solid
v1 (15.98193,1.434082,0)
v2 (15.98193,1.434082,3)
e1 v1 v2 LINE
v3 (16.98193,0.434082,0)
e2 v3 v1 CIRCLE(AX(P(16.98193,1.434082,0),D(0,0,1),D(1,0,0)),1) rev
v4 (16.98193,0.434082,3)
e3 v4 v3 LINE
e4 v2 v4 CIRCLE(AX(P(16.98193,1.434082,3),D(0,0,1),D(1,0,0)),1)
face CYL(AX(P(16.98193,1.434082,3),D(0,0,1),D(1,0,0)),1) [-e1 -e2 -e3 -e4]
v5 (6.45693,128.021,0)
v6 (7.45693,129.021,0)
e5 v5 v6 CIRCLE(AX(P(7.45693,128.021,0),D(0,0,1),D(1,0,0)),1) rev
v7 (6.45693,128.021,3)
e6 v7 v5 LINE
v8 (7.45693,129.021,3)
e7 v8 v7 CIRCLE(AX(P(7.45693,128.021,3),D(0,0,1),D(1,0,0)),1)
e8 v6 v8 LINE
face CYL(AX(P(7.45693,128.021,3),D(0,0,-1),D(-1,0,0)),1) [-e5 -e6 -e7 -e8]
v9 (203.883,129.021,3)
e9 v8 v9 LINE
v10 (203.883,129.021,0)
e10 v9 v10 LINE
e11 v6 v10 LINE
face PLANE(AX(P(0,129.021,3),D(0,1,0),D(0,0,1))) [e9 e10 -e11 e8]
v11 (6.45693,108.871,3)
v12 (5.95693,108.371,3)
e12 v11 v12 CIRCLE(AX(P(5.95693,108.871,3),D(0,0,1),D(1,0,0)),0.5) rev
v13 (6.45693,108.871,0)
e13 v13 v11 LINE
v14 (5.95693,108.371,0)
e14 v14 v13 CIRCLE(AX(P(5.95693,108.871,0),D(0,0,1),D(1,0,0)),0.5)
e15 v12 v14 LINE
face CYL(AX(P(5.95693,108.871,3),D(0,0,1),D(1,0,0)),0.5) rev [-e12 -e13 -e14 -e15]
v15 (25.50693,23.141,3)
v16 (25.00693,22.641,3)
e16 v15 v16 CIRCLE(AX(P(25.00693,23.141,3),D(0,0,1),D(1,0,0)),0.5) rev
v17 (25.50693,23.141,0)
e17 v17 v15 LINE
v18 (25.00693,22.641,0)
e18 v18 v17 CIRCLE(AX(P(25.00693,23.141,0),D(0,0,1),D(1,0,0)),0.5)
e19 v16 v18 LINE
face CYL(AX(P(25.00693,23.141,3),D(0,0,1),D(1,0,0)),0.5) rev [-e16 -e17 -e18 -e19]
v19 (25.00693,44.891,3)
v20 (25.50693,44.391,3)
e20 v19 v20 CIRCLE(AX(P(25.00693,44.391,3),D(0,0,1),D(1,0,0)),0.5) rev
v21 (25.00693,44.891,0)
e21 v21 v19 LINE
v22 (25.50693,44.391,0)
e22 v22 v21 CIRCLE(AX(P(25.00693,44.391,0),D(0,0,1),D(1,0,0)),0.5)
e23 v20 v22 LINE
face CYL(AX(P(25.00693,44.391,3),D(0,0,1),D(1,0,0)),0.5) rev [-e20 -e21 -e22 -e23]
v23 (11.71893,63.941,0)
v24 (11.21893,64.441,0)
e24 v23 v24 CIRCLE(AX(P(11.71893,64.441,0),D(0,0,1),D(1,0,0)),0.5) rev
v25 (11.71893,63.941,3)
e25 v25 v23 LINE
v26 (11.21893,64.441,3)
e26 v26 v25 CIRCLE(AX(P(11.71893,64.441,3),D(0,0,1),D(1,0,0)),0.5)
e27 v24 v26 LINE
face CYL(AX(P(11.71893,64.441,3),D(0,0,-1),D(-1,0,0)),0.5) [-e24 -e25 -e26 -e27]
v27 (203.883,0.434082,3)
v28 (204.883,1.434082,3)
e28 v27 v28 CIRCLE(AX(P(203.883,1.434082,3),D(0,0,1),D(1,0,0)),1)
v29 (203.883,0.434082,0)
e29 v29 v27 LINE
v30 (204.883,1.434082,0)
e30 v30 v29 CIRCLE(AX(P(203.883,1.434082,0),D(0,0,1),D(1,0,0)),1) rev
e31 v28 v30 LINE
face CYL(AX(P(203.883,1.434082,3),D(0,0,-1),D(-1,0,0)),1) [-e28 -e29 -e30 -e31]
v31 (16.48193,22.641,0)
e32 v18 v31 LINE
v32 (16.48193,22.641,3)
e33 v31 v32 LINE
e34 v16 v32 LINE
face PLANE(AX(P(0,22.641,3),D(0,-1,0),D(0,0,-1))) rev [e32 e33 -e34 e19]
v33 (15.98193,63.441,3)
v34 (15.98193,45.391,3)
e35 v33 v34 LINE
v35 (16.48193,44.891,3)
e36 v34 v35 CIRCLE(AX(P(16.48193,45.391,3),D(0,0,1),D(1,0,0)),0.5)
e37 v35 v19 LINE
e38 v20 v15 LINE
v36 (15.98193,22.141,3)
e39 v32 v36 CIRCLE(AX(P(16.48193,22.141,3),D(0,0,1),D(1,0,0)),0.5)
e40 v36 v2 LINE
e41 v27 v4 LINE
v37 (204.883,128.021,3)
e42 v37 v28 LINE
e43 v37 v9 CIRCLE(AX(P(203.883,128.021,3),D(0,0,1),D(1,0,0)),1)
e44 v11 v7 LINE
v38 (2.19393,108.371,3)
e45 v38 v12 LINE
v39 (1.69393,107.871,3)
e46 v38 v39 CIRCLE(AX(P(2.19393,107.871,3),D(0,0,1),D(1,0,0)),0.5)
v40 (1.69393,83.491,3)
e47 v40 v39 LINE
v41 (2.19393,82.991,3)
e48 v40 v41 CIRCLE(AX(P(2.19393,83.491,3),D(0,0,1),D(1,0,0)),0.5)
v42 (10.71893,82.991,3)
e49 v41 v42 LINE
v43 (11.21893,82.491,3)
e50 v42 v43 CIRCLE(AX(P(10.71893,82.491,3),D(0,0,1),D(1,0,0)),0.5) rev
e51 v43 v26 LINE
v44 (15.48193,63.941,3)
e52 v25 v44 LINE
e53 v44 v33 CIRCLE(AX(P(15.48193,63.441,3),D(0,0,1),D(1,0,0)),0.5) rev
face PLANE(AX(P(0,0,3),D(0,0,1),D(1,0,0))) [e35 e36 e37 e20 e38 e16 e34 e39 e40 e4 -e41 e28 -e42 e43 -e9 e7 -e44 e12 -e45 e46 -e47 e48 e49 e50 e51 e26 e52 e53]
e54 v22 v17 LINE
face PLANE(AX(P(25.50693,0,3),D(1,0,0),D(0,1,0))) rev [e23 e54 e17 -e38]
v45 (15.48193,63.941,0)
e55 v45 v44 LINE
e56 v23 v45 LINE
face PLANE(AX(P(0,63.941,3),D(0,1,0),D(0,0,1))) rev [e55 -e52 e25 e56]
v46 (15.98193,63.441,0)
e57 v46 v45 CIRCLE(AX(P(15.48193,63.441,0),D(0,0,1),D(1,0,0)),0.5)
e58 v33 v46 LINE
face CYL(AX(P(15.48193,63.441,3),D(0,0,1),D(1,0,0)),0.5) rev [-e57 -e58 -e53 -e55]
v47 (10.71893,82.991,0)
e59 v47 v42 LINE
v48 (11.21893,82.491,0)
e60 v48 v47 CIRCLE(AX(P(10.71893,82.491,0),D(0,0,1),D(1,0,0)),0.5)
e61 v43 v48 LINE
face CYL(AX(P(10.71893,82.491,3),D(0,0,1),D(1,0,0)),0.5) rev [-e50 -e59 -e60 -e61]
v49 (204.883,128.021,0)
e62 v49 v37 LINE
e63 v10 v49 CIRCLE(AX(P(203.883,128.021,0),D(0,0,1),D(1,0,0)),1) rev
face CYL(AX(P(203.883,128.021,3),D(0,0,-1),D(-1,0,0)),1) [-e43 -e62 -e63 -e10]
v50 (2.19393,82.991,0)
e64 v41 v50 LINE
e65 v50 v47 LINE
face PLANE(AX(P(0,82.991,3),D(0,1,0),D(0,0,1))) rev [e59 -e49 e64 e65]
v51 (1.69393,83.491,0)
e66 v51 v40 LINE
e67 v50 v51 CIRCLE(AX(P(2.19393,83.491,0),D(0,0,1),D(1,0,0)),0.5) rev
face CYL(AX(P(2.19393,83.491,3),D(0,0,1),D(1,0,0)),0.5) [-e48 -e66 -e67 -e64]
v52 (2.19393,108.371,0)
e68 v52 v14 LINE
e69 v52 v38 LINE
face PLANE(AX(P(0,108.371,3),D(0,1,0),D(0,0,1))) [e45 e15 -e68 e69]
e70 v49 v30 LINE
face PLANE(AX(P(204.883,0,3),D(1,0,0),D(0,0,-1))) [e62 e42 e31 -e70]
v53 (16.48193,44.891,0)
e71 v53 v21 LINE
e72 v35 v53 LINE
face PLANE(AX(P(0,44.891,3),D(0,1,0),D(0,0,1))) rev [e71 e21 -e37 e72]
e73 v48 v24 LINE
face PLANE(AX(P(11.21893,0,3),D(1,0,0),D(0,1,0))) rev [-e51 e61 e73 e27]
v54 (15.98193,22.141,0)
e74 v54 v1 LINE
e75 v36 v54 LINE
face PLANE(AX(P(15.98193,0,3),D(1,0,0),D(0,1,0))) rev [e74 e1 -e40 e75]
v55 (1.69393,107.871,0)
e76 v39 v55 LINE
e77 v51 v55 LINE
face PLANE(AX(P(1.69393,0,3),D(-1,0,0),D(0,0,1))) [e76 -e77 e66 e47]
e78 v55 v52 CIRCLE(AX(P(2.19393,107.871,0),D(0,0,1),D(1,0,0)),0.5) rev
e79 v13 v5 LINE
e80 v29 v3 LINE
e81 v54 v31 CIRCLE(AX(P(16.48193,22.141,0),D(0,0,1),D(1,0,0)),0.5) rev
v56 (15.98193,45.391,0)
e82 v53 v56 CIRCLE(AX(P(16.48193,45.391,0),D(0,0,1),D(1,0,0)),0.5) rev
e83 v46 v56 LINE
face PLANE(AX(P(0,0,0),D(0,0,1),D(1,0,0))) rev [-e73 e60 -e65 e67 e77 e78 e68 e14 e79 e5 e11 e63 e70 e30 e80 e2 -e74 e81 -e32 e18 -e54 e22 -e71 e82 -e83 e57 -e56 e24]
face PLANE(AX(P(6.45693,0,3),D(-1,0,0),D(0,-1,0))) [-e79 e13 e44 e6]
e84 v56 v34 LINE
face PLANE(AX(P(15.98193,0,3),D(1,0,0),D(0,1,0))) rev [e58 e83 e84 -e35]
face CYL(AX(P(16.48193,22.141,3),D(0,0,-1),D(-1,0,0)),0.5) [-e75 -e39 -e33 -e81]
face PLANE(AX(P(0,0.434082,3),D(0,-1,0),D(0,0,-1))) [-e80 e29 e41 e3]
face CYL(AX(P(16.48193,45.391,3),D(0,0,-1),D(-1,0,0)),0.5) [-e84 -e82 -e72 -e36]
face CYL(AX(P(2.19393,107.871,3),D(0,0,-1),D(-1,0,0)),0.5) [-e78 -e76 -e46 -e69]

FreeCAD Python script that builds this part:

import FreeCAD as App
import Part
import Sketcher
Q = App.Units.Quantity


def edges_at(feature, points):
    """Names of the edges that pass closest to the given points."""
    edges = feature.Shape.Edges
    near = lambda p: min(range(len(edges)), key=lambda i: edges[i].distToShape(Part.Vertex(*p))[0])
    return sorted({f"Edge{near(p) + 1}" for p in points})

doc = App.newDocument("Part")
params = doc.addObject("Spreadsheet::Sheet", "Params")
for row, (alias, value) in enumerate([
    ("sketch1_height", "20.65 mm"),
    ("sketch1_height2", "25.38 mm"),
    ("sketch1_height3", "19.05 mm"),
    ("sketch1_height4", "22.25 mm"),
    ("pad1_length", "3 mm"),
    ("fillet_radius", "0.5 mm"),
    ("fillet2_radius", "1 mm"),
], start=1):
    params.set(f"A{row}", alias)
    params.set(f"B{row}", "=" + value)
    params.setAlias(f"B{row}", alias)

body = doc.addObject("PartDesign::Body", "Body")

# Sketch on XY plane
sketch1 = body.newObject("Sketcher::SketchObject", "Sketch")
sketch1.AttachmentSupport = (doc.getObject("XY_Plane"), [""])
sketch1.MapMode = "FlatFace"
sketch1.addGeometry([
    Part.LineSegment(App.Vector(204.883, 129.021, 0), App.Vector(6.45693, 129.021, 0)),  # 0
    Part.LineSegment(App.Vector(6.45693, 129.021, 0), App.Vector(6.45693, 108.371, 0)),  # 1
    Part.LineSegment(App.Vector(6.45693, 108.371, 0), App.Vector(1.69393, 108.371, 0)),  # 2
    Part.LineSegment(App.Vector(1.69393, 108.371, 0), App.Vector(1.69393, 82.991, 0)),  # 3
    Part.LineSegment(App.Vector(1.69393, 82.991, 0), App.Vector(11.21893, 82.991, 0)),  # 4
    Part.LineSegment(App.Vector(11.21893, 82.991, 0), App.Vector(11.21893, 63.941, 0)),  # 5
    Part.LineSegment(App.Vector(11.21893, 63.941, 0), App.Vector(15.98193, 63.941, 0)),  # 6
    Part.LineSegment(App.Vector(15.98193, 63.941, 0), App.Vector(15.98193, 44.891, 0)),  # 7
    Part.LineSegment(App.Vector(15.98193, 44.891, 0), App.Vector(25.50693, 44.891, 0)),  # 8
    Part.LineSegment(App.Vector(25.50693, 44.891, 0), App.Vector(25.50693, 22.641, 0)),  # 9
    Part.LineSegment(App.Vector(25.50693, 22.641, 0), App.Vector(15.98193, 22.641, 0)),  # 10
    Part.LineSegment(App.Vector(15.98193, 22.641, 0), App.Vector(15.98193, 0.434082, 0)),  # 11
    Part.LineSegment(App.Vector(15.98193, 0.434082, 0), App.Vector(204.883, 0.434082, 0)),  # 12
    Part.LineSegment(App.Vector(204.883, 0.434082, 0), App.Vector(204.883, 129.021, 0)),  # 13
], False)
sketch1.addConstraint([
    Sketcher.Constraint("Coincident", 0, 2, 1, 1),
    Sketcher.Constraint("Coincident", 1, 2, 2, 1),
    Sketcher.Constraint("Coincident", 2, 2, 3, 1),
    Sketcher.Constraint("Coincident", 3, 2, 4, 1),
    Sketcher.Constraint("Coincident", 4, 2, 5, 1),
    Sketcher.Constraint("Coincident", 5, 2, 6, 1),
    Sketcher.Constraint("Coincident", 6, 2, 7, 1),
    Sketcher.Constraint("Coincident", 7, 2, 8, 1),
    Sketcher.Constraint("Coincident", 8, 2, 9, 1),
    Sketcher.Constraint("Coincident", 9, 2, 10, 1),
    Sketcher.Constraint("Coincident", 10, 2, 11, 1),
    Sketcher.Constraint("Coincident", 11, 2, 12, 1),
    Sketcher.Constraint("Coincident", 12, 2, 13, 1),
    Sketcher.Constraint("Coincident", 13, 2, 0, 1),
    Sketcher.Constraint("Horizontal", 0),
    Sketcher.Constraint("Vertical", 1),
    Sketcher.Constraint("Horizontal", 2),
    Sketcher.Constraint("Vertical", 3),
    Sketcher.Constraint("Horizontal", 4),
    Sketcher.Constraint("Vertical", 5),
    Sketcher.Constraint("Horizontal", 6),
    Sketcher.Constraint("Vertical", 7),
    Sketcher.Constraint("Horizontal", 8),
    Sketcher.Constraint("Vertical", 9),
    Sketcher.Constraint("Horizontal", 10),
    Sketcher.Constraint("Vertical", 11),
    Sketcher.Constraint("Horizontal", 12),
    Sketcher.Constraint("Vertical", 13),
    Sketcher.Constraint("Vertical", 7, 2, 10, 2),
    Sketcher.Constraint("Equal", 2, 6),
    Sketcher.Constraint("Equal", 4, 8),
    Sketcher.Constraint("Equal", 5, 7),
    Sketcher.Constraint("DistanceY", 1, 2, 1, 1, Q("20.65 mm")),
    Sketcher.Constraint("DistanceY", 3, 2, 3, 1, Q("25.38 mm")),
    Sketcher.Constraint("DistanceY", 5, 2, 5, 1, Q("19.05 mm")),
    Sketcher.Constraint("DistanceY", 9, 2, 9, 1, Q("22.25 mm")),
    Sketcher.Constraint("DistanceX", 2, 2, 2, 1, Q("4.763 mm")),
    Sketcher.Constraint("DistanceX", 4, 1, 4, 2, Q("9.525 mm")),
    Sketcher.Constraint("DistanceY", -1, 1, 0, 2, Q("129.021 mm")),
    Sketcher.Constraint("DistanceX", -1, 1, 12, 2, Q("204.883 mm")),
    Sketcher.Constraint("DistanceX", 0, 2, 0, 1, Q("198.42607 mm")),
    Sketcher.Constraint("DistanceY", 13, 1, 13, 2, Q("128.586918 mm")),
])
sketch1.setExpression("Constraints[32]", "Params.sketch1_height")
sketch1.setExpression("Constraints[33]", "Params.sketch1_height2")
sketch1.setExpression("Constraints[34]", "Params.sketch1_height3")
sketch1.setExpression("Constraints[35]", "Params.sketch1_height4")
pad1 = body.newObject("PartDesign::Pad", "Pad")
pad1.Profile = sketch1
pad1.setExpression("Length", "Params.pad1_length")
doc.recompute()

fillet = body.newObject("PartDesign::Fillet", "Fillet")
fillet.Base = (pad1, edges_at(pad1, [
    (15.982, 22.641, 1.5),
    (25.507, 22.641, 1.5),
    (25.507, 44.891, 1.5),
    (15.982, 44.891, 1.5),
    (15.982, 63.941, 1.5),
    (11.219, 63.941, 1.5),
    (11.219, 82.991, 1.5),
    (1.694, 82.991, 1.5),
    (1.694, 108.371, 1.5),
    (6.457, 108.371, 1.5),
]))
fillet.setExpression("Radius", "Params.fillet_radius")
doc.recompute()

fillet2 = body.newObject("PartDesign::Fillet", "Fillet001")
fillet2.Base = (fillet, edges_at(fillet, [
    (6.457, 129.021, 1.5),
    (204.883, 129.021, 1.5),
    (204.883, 0.434, 1.5),
    (15.982, 0.434, 1.5),
]))
fillet2.setExpression("Radius", "Params.fillet2_radius")

doc.recompute()
